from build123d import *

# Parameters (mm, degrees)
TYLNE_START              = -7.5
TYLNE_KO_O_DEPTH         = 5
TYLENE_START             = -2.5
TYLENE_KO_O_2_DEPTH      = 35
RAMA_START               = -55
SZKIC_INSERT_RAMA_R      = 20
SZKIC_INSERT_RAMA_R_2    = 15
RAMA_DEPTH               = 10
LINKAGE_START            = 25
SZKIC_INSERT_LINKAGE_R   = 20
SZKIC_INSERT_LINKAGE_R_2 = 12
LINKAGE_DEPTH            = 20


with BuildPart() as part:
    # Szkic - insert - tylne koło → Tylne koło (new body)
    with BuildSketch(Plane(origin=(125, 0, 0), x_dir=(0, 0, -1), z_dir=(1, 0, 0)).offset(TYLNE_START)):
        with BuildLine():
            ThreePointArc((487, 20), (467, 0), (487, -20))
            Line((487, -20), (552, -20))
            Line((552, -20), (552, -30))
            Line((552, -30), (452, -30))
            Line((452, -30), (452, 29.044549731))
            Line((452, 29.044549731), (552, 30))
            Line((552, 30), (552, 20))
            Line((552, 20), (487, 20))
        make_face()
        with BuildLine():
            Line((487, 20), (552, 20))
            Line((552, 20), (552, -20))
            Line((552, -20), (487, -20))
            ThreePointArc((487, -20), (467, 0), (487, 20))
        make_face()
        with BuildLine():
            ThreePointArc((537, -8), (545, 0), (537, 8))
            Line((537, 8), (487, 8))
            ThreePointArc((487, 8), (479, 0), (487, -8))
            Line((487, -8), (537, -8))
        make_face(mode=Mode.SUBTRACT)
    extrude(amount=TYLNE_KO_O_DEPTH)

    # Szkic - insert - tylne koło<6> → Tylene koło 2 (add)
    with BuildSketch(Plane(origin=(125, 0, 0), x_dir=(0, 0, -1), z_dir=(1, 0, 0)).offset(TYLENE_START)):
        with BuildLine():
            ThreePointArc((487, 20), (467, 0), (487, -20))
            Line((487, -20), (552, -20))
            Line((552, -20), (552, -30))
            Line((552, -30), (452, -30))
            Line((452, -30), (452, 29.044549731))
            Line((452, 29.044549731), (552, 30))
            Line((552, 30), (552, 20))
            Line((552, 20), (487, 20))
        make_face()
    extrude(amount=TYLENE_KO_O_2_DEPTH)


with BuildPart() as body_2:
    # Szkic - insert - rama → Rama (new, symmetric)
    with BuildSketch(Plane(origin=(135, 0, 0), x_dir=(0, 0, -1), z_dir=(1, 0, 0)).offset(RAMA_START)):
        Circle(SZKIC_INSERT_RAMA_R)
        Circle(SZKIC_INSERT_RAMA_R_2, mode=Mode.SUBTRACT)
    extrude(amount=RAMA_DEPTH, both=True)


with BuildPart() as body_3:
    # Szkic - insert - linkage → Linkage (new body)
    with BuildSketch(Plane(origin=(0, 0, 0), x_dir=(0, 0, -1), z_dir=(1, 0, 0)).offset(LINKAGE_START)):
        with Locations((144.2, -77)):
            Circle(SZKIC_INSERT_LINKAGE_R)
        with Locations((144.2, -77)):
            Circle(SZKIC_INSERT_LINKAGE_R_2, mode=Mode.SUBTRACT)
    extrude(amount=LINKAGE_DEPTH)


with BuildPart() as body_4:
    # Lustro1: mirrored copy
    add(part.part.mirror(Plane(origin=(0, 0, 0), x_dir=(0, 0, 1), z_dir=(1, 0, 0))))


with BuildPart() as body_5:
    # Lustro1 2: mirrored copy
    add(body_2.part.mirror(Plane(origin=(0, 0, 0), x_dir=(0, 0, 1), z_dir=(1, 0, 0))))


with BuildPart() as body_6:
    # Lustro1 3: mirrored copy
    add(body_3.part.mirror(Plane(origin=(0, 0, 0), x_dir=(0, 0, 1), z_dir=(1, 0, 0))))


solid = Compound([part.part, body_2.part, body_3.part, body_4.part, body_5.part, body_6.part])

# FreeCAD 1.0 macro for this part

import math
import FreeCAD as App
import Part
import Sketcher

V = App.Vector


def add_polygon(sketch, points):
    """Adds a closed chain of lines whose ends are joined by coincident constraints."""
    first, n = sketch.GeometryCount, len(points)
    for a, b in zip(points, points[1:] + points[:1]):
        sketch.addGeometry(Part.LineSegment(App.Vector(*a, 0), App.Vector(*b, 0)), False)
    for i in range(n):
        sketch.addConstraint(Sketcher.Constraint("Coincident", first + i, 2, first + (i + 1) % n, 1))

doc = App.newDocument("Part")
body = doc.addObject("PartDesign::Body", "Body")

sketch1 = doc.addObject("Sketcher::SketchObject", "Sketch")
body.addObject(sketch1)
sketch1.AttachmentSupport = (doc.YZ_Plane, [""])
sketch1.MapMode = "FlatFace"
sketch1.AttachmentOffset = App.Placement(V(0, 0, 117.5), App.Rotation())
add_polygon(sketch1, [(-30, -552), (30, -552), (29.04455, -452), (-30, -452)])
sketch1.addGeometry(Part.LineSegment(V(-8, -537, 0), V(-8, -487, 0)), False)
sketch1.addGeometry(Part.ArcOfCircle(Part.Circle(V(0, -487, 0), V(0, 0, 1), 8), math.radians(0), math.radians(180)), False)
sketch1.addGeometry(Part.LineSegment(V(8, -487, 0), V(8, -537, 0)), False)
sketch1.addGeometry(Part.ArcOfCircle(Part.Circle(V(0, -537, 0), V(0, 0, 1), 8), math.radians(180), math.radians(360)), False)
sketch1.addConstraint([
    Sketcher.Constraint("Tangent", 4, 2, 5, 2),
    Sketcher.Constraint("Tangent", 5, 1, 6, 1),
    Sketcher.Constraint("Tangent", 6, 2, 7, 2),
    Sketcher.Constraint("Tangent", 7, 1, 4, 1),
    Sketcher.Constraint("Horizontal", 0),
    Sketcher.Constraint("Horizontal", 2),
    Sketcher.Constraint("Vertical", 3),
    Sketcher.Constraint("Vertical", 4),
    Sketcher.Constraint("Vertical", 6),
    Sketcher.Constraint("PointOnObject", 5, 3, -2),
    Sketcher.Constraint("Radius", 5, 8.0),
    Sketcher.Constraint("DistanceX", 0, 1, 0, 2, 60.0),
    Sketcher.Constraint("DistanceY", 3, 2, 3, 1, 100.0),
    Sketcher.Constraint("DistanceY", 4, 1, 4, 2, 50.0),
    Sketcher.Constraint("DistanceY", 5, 3, -1, 1, 487.0),
    Sketcher.Constraint("DistanceX", -1, 1, 0, 2, 30.0),
    Sketcher.Constraint("DistanceY", 0, 2, -1, 1, 552.0),
    Sketcher.Constraint("DistanceX", 2, 2, 2, 1, 59.04455),
])
pad1 = doc.addObject("PartDesign::Pad", "Pad")
body.addObject(pad1)
pad1.Profile = sketch1
pad1.Length = 5

sketch2 = doc.addObject("Sketcher::SketchObject", "Sketch001")
body.addObject(sketch2)
sketch2.AttachmentSupport = (doc.YZ_Plane, [""])
sketch2.MapMode = "FlatFace"
sketch2.AttachmentOffset = App.Placement(V(0, 0, 122.5), App.Rotation())
sketch2.addGeometry([
    Part.ArcOfCircle(Part.Circle(V(0, -487, 0), V(0, 0, 1), 20), math.radians(0), math.radians(180)),
    Part.LineSegment(V(20, -487, 0), V(20, -552, 0)),
    Part.LineSegment(V(20, -552, 0), V(30, -552, 0)),
    Part.LineSegment(V(30, -552, 0), V(29.04455, -452, 0)),
    Part.LineSegment(V(29.04455, -452, 0), V(-30, -452, 0)),
    Part.LineSegment(V(-30, -452, 0), V(-30, -552, 0)),
    Part.LineSegment(V(-30, -552, 0), V(-20, -552, 0)),
    Part.LineSegment(V(-20, -552, 0), V(-20, -487, 0)),
], False)
sketch2.addConstraint([
    Sketcher.Constraint("Tangent", 0, 1, 1, 1),
    Sketcher.Constraint("Coincident", 1, 2, 2, 1),
    Sketcher.Constraint("Coincident", 2, 2, 3, 1),
    Sketcher.Constraint("Coincident", 3, 2, 4, 1),
    Sketcher.Constraint("Coincident", 4, 2, 5, 1),
    Sketcher.Constraint("Coincident", 5, 2, 6, 1),
    Sketcher.Constraint("Coincident", 6, 2, 7, 1),
    Sketcher.Constraint("Tangent", 7, 2, 0, 2),
    Sketcher.Constraint("Vertical", 1),
    Sketcher.Constraint("Horizontal", 2),
    Sketcher.Constraint("Horizontal", 4),
    Sketcher.Constraint("Vertical", 5),
    Sketcher.Constraint("Horizontal", 6),
    Sketcher.Constraint("Vertical", 7),
    Sketcher.Constraint("Symmetric", 2, 2, 5, 2, -2),
    Sketcher.Constraint("PointOnObject", 0, 3, -2),
    Sketcher.Constraint("Radius", 0, 20.0),
    Sketcher.Constraint("DistanceX", 2, 1, 2, 2, 10.0),
    Sketcher.Constraint("DistanceY", 1, 2, 1, 1, 65.0),
    Sketcher.Constraint("DistanceY", 5, 2, 5, 1, 100.0),
    Sketcher.Constraint("DistanceY", 0, 3, -1, 1, 487.0),
    Sketcher.Constraint("DistanceX", 4, 2, 4, 1, 59.04455),
])
pad2 = doc.addObject("PartDesign::Pad", "Pad001")
body.addObject(pad2)
pad2.Profile = sketch2
pad2.Length = 35
body2 = doc.addObject("PartDesign::Body", "Body001")

sketch3 = doc.addObject("Sketcher::SketchObject", "Sketch002")
body2.addObject(sketch3)
sketch3.AttachmentSupport = (doc.getObject("YZ_Plane001"), [""])
sketch3.MapMode = "FlatFace"
sketch3.AttachmentOffset = App.Placement(V(0, 0, 80), App.Rotation())
sketch3.addGeometry([
    Part.Circle(V(0, 0, 0), V(0, 0, 1), 20),
    Part.Circle(V(0, 0, 0), V(0, 0, 1), 15),
], False)
sketch3.addConstraint([
    Sketcher.Constraint("Coincident", 0, 3, -1, 1),
    Sketcher.Constraint("Coincident", 1, 3, -1, 1),
    Sketcher.Constraint("Diameter", 0, 40.0),
    Sketcher.Constraint("Diameter", 1, 30.0),
])
pad3 = doc.addObject("PartDesign::Pad", "Pad002")
body2.addObject(pad3)
pad3.Profile = sketch3
pad3.Length = 20
pad3.Midplane = True
body3 = doc.addObject("PartDesign::Body", "Body002")

sketch4 = doc.addObject("Sketcher::SketchObject", "Sketch003")
body3.addObject(sketch4)
sketch4.AttachmentSupport = (doc.getObject("YZ_Plane002"), [""])
sketch4.MapMode = "FlatFace"
sketch4.AttachmentOffset = App.Placement(V(0, 0, 25), App.Rotation())
sketch4.addGeometry([
    Part.Circle(V(-77, -144.2, 0), V(0, 0, 1), 20),
    Part.Circle(V(-77, -144.2, 0), V(0, 0, 1), 12),
], False)
sketch4.addConstraint([
    Sketcher.Constraint("Coincident", 1, 3, 0, 3),
    Sketcher.Constraint("Diameter", 0, 40.0),
    Sketcher.Constraint("Diameter", 1, 24.0),
    Sketcher.Constraint("DistanceX", 0, 3, -1, 1, 77.0),
    Sketcher.Constraint("DistanceY", 0, 3, -1, 1, 144.2),
])
pad4 = doc.addObject("PartDesign::Pad", "Pad003")
body3.addObject(pad4)
pad4.Profile = sketch4
pad4.Length = 20
body4 = doc.addObject("PartDesign::Body", "Body003")
doc.recompute()

mirroring = doc.addObject("Part::Mirroring", "Mirroring")
mirroring.Source = body
mirroring.Base = V(0, 0, 0)
mirroring.Normal = V(1, 0, 0)
body4.BaseFeature = mirroring
doc.recompute()
body5 = doc.addObject("PartDesign::Body", "Body004")
doc.recompute()

mirroring2 = doc.addObject("Part::Mirroring", "Mirroring001")
mirroring2.Source = body2
mirroring2.Base = V(0, 0, 0)
mirroring2.Normal = V(1, 0, 0)
body5.BaseFeature = mirroring2
doc.recompute()
body6 = doc.addObject("PartDesign::Body", "Body005")
doc.recompute()

mirroring3 = doc.addObject("Part::Mirroring", "Mirroring002")
mirroring3.Source = body3
mirroring3.Base = V(0, 0, 0)
mirroring3.Normal = V(1, 0, 0)
body6.BaseFeature = mirroring3
doc.recompute()
mirroring.Visibility = False
mirroring2.Visibility = False
mirroring3.Visibility = False

doc.recompute()
